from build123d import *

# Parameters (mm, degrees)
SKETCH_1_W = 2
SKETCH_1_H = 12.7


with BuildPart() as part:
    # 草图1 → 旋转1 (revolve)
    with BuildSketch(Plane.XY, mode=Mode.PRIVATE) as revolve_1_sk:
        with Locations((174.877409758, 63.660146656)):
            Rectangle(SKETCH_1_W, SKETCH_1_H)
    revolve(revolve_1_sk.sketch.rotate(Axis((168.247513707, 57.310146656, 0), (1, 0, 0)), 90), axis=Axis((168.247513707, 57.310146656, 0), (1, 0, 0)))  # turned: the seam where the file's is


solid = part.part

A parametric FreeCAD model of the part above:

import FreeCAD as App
import Part
import Sketcher
from FreeCAD import Vector

doc = App.newDocument("Part")
body = doc.addObject("PartDesign::Body", "Body")

# Sketch on XY plane
sketch1 = body.newObject("Sketcher::SketchObject", "Sketch")
sketch1.AttachmentSupport = (doc.getObject("XY_Plane"), [""])
sketch1.MapMode = "FlatFace"
sketch1.addGeometry(Part.LineSegment(Vector(173.9, 70, 0), Vector(173.9, 57.3, 0)), False)
sketch1.addGeometry(Part.LineSegment(Vector(173.9, 57.3, 0), Vector(175.9, 57.3, 0)), False)
sketch1.addGeometry(Part.LineSegment(Vector(175.9, 57.3, 0), Vector(175.9, 70, 0)), False)
sketch1.addGeometry(Part.LineSegment(Vector(175.9, 70, 0), Vector(173.9, 70, 0)), False)
sketch1.addGeometry(Part.LineSegment(Vector(173.9, 57.3, 0), Vector(175.9, 57.3, 0)), True)  # axis
sketch1.addConstraint(Sketcher.Constraint("Coincident", 0, 2, 1, 1))
sketch1.addConstraint(Sketcher.Constraint("Coincident", 1, 2, 2, 1))
sketch1.addConstraint(Sketcher.Constraint("Coincident", 2, 2, 3, 1))
sketch1.addConstraint(Sketcher.Constraint("Coincident", 3, 2, 0, 1))
sketch1.addConstraint(Sketcher.Constraint("Vertical", 0))
sketch1.addConstraint(Sketcher.Constraint("Horizontal", 1))
sketch1.addConstraint(Sketcher.Constraint("Vertical", 2))
sketch1.addConstraint(Sketcher.Constraint("Horizontal", 3))
sketch1.addConstraint(Sketcher.Constraint("Horizontal", 4))
sketch1.addConstraint(Sketcher.Constraint("Coincident", 4, 1, 0, 2))
sketch1.addConstraint(Sketcher.Constraint("Vertical", 2, 2, 4, 2))
sketch1.addConstraint(Sketcher.Constraint("DistanceX", 1, 1, 1, 2, 2.0))
sketch1.addConstraint(Sketcher.Constraint("DistanceY", 0, 2, 0, 1, 12.7))
sketch1.addConstraint(Sketcher.Constraint("DistanceX", -1, 1, 0, 2, 173.87741))
sketch1.addConstraint(Sketcher.Constraint("DistanceY", -1, 1, 0, 2, 57.310147))
revolution = body.newObject("PartDesign::Revolution", "Revolution")
revolution.Profile = sketch1
revolution.ReferenceAxis = (sketch1, ["Axis0"])
revolution.Angle = 360

doc.recompute()
